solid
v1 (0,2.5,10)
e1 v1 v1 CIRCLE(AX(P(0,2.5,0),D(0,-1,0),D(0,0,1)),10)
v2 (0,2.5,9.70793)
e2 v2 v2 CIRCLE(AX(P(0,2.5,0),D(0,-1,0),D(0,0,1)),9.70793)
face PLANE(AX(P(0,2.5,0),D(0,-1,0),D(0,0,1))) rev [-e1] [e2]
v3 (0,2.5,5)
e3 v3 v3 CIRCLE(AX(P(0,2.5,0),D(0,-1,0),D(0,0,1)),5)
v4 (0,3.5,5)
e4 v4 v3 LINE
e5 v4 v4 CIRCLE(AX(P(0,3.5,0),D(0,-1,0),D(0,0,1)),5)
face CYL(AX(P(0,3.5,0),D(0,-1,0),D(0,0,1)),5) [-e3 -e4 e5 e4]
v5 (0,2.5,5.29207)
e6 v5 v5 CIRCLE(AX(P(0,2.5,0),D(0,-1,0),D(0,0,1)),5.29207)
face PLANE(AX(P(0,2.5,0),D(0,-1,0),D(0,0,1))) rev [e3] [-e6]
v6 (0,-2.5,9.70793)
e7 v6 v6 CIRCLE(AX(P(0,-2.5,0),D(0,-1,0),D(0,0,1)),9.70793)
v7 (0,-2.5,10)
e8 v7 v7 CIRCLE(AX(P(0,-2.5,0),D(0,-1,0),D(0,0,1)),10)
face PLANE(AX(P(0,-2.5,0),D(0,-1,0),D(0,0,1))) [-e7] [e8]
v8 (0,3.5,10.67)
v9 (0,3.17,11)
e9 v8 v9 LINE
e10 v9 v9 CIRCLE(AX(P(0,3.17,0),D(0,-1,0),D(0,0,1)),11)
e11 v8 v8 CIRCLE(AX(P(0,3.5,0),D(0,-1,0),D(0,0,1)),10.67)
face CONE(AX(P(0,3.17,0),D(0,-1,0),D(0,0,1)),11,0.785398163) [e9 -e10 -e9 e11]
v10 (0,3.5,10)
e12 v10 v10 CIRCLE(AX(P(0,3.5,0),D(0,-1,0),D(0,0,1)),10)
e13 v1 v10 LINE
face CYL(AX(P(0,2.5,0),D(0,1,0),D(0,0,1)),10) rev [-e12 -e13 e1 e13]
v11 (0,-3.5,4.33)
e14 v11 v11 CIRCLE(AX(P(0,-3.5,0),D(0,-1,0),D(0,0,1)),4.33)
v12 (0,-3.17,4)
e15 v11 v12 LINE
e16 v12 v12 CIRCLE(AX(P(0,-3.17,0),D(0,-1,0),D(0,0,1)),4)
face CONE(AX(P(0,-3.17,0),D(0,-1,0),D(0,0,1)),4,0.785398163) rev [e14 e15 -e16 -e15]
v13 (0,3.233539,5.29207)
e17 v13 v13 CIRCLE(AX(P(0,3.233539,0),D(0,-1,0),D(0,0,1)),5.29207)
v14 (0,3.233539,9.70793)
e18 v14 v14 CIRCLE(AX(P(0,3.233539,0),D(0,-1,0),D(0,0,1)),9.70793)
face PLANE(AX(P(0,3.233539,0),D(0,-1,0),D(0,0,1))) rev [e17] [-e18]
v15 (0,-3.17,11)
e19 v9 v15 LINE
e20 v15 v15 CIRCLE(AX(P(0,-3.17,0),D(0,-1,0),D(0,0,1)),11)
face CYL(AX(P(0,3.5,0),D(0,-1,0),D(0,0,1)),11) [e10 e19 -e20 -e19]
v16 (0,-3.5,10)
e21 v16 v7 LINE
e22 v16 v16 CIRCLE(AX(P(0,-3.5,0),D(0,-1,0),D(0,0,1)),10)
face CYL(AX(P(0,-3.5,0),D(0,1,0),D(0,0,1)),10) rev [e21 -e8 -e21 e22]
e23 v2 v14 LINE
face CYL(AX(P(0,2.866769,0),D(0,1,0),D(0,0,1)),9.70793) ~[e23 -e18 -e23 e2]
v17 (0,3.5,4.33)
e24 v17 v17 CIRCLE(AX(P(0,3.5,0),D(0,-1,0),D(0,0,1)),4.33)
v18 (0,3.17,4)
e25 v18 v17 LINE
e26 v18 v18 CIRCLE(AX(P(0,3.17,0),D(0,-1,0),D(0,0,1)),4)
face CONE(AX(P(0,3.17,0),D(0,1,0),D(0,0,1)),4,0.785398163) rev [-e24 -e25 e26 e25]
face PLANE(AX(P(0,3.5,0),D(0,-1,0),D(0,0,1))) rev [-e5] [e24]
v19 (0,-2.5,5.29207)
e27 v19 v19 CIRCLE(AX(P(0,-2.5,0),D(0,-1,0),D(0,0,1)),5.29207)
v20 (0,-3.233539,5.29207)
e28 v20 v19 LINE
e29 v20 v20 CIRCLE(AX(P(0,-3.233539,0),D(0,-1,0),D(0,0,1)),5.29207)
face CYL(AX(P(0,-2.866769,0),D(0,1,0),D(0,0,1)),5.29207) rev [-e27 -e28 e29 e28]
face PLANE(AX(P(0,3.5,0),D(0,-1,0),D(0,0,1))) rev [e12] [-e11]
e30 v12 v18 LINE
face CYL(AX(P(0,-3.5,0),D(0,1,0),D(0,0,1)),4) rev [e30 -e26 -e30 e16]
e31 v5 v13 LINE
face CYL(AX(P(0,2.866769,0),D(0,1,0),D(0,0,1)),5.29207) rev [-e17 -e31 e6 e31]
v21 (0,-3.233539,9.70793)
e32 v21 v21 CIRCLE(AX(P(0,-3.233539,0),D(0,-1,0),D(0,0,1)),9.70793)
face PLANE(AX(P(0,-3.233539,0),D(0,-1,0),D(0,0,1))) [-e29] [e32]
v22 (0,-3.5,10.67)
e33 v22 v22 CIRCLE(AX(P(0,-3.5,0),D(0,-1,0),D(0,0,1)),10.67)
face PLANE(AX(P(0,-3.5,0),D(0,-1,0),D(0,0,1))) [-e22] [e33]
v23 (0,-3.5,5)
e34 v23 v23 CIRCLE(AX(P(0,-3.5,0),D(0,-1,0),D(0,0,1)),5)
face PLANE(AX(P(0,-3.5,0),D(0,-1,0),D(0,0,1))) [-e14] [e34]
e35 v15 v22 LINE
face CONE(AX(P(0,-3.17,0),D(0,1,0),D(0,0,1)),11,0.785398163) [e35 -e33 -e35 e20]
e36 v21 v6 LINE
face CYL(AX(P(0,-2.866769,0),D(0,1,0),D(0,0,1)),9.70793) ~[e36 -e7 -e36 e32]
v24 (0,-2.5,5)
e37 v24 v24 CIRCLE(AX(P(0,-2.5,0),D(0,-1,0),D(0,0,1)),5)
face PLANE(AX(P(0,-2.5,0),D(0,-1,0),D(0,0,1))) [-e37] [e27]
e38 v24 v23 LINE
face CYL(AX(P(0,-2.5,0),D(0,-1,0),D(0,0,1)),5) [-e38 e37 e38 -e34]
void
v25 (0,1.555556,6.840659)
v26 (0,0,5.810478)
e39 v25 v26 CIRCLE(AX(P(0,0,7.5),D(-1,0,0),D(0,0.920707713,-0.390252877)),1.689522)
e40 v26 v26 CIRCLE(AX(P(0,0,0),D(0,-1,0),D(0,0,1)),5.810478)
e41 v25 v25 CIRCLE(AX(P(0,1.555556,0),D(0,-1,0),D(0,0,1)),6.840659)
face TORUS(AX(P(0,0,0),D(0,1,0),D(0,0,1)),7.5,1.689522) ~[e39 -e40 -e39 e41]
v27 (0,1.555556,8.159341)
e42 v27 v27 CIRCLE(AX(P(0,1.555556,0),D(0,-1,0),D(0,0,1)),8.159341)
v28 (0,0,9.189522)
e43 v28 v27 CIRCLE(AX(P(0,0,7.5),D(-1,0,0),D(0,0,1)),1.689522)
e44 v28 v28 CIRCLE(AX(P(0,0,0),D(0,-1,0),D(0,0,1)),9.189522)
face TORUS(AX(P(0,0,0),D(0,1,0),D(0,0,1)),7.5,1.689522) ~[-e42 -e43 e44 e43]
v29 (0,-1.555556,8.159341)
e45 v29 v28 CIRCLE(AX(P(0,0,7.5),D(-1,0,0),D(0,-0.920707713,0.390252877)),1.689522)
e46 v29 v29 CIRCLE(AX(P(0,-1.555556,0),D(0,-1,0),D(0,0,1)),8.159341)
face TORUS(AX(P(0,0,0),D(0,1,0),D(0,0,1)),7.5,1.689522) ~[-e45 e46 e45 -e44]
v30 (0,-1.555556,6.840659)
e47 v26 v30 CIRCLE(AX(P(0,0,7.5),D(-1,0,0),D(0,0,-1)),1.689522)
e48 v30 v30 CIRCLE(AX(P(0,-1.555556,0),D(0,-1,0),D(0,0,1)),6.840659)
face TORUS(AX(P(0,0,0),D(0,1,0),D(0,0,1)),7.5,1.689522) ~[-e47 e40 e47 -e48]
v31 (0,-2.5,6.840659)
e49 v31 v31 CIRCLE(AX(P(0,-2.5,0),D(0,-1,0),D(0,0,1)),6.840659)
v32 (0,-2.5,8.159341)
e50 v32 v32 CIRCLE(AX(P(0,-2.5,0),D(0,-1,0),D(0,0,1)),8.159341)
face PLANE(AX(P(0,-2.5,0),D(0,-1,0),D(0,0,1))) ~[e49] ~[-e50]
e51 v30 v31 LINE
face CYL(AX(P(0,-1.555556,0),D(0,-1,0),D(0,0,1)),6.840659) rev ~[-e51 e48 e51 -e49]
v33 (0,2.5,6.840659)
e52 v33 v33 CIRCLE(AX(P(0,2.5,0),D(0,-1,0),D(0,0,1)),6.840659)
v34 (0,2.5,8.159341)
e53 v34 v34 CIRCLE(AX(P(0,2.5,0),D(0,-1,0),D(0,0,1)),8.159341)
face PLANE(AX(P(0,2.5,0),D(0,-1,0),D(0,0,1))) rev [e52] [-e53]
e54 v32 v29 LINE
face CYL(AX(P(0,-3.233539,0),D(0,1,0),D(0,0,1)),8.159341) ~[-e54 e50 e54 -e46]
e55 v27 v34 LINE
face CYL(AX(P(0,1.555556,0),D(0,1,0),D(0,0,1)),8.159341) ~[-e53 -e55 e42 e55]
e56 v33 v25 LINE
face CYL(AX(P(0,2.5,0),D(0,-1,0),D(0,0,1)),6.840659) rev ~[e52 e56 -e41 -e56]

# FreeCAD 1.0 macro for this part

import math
import FreeCAD as App
import Part
import Sketcher

V = App.Vector
Q = App.Units.Quantity


def edges_at(feature, points):
    """Names of the edges that pass closest to the given points."""
    edges = feature.Shape.Edges
    near = lambda p: min(range(len(edges)), key=lambda i: edges[i].distToShape(Part.Vertex(*p))[0])
    return sorted({f"Edge{near(p) + 1}" for p in points})

doc = App.newDocument("Part")
body = doc.addObject("PartDesign::Body", "Body")

# Sketch on YZ plane
sketch1 = doc.addObject("Sketcher::SketchObject", "Sketch")
body.addObject(sketch1)
sketch1.AttachmentSupport = (doc.YZ_Plane, [""])
sketch1.MapMode = "FlatFace"
sketch1.addGeometry(Part.LineSegment(V(3.5, 10, 0), V(3.5, 11, 0)), False)
sketch1.addGeometry(Part.LineSegment(V(3.5, 11, 0), V(-3.5, 11, 0)), False)
sketch1.addGeometry(Part.LineSegment(V(-3.5, 11, 0), V(-3.5, 10, 0)), False)
sketch1.addGeometry(Part.LineSegment(V(-3.5, 10, 0), V(-2.5, 10, 0)), False)
sketch1.addGeometry(Part.LineSegment(V(-2.5, 10, 0), V(-2.5, 9.71, 0)), False)
sketch1.addGeometry(Part.LineSegment(V(-2.5, 9.71, 0), V(-3.23, 9.71, 0)), False)
sketch1.addGeometry(Part.LineSegment(V(-3.23, 9.71, 0), V(-3.23, 5.29, 0)), False)
sketch1.addGeometry(Part.LineSegment(V(-3.23, 5.29, 0), V(-2.5, 5.29, 0)), False)
sketch1.addGeometry(Part.LineSegment(V(-2.5, 5.29, 0), V(-2.5, 5, 0)), False)
sketch1.addGeometry(Part.LineSegment(V(-2.5, 5, 0), V(-3.5, 5, 0)), False)
sketch1.addGeometry(Part.LineSegment(V(-3.5, 5, 0), V(-3.5, 4, 0)), False)
sketch1.addGeometry(Part.LineSegment(V(-3.5, 4, 0), V(3.5, 4, 0)), False)
sketch1.addGeometry(Part.LineSegment(V(3.5, 4, 0), V(3.5, 5, 0)), False)
sketch1.addGeometry(Part.LineSegment(V(3.5, 5, 0), V(2.5, 5, 0)), False)
sketch1.addGeometry(Part.LineSegment(V(2.5, 5, 0), V(2.5, 5.29, 0)), False)
sketch1.addGeometry(Part.LineSegment(V(2.5, 5.29, 0), V(3.23, 5.29, 0)), False)
sketch1.addGeometry(Part.LineSegment(V(3.23, 5.29, 0), V(3.23, 9.71, 0)), False)
sketch1.addGeometry(Part.LineSegment(V(3.23, 9.71, 0), V(2.5, 9.71, 0)), False)
sketch1.addGeometry(Part.LineSegment(V(2.5, 9.71, 0), V(2.5, 10, 0)), False)
sketch1.addGeometry(Part.LineSegment(V(2.5, 10, 0), V(3.5, 10, 0)), False)
sketch1.addGeometry(Part.LineSegment(V(-2.5, 8.16, 0), V(-1.56, 8.16, 0)), False)
sketch1.addGeometry(Part.ArcOfCircle(Part.Circle(V(0, 7.5, 0), V(0, 0, 1), 1.69), math.radians(90), math.radians(157)), False)
sketch1.addGeometry(Part.ArcOfCircle(Part.Circle(V(0, 7.5, 0), V(0, 0, 1), 1.69), math.radians(23), math.radians(90)), False)
sketch1.addGeometry(Part.LineSegment(V(1.56, 8.16, 0), V(2.5, 8.16, 0)), False)
sketch1.addGeometry(Part.LineSegment(V(2.5, 8.16, 0), V(2.5, 6.84, 0)), False)
sketch1.addGeometry(Part.LineSegment(V(2.5, 6.84, 0), V(1.56, 6.84, 0)), False)
sketch1.addGeometry(Part.ArcOfCircle(Part.Circle(V(0, 7.5, 0), V(0, 0, 1), 1.69), math.radians(-90), math.radians(-23)), False)
sketch1.addGeometry(Part.ArcOfCircle(Part.Circle(V(0, 7.5, 0), V(0, 0, 1), 1.69), math.radians(-157), math.radians(-90)), False)
sketch1.addGeometry(Part.LineSegment(V(-1.56, 6.84, 0), V(-2.5, 6.84, 0)), False)
sketch1.addGeometry(Part.LineSegment(V(-2.5, 6.84, 0), V(-2.5, 8.16, 0)), False)
sketch1.addConstraint(Sketcher.Constraint("Coincident", 0, 2, 1, 1))
sketch1.addConstraint(Sketcher.Constraint("Coincident", 1, 2, 2, 1))
sketch1.addConstraint(Sketcher.Constraint("Coincident", 2, 2, 3, 1))
sketch1.addConstraint(Sketcher.Constraint("Coincident", 3, 2, 4, 1))
sketch1.addConstraint(Sketcher.Constraint("Coincident", 4, 2, 5, 1))
sketch1.addConstraint(Sketcher.Constraint("Coincident", 5, 2, 6, 1))
sketch1.addConstraint(Sketcher.Constraint("Coincident", 6, 2, 7, 1))
sketch1.addConstraint(Sketcher.Constraint("Coincident", 7, 2, 8, 1))
sketch1.addConstraint(Sketcher.Constraint("Coincident", 8, 2, 9, 1))
sketch1.addConstraint(Sketcher.Constraint("Coincident", 9, 2, 10, 1))
sketch1.addConstraint(Sketcher.Constraint("Coincident", 10, 2, 11, 1))
sketch1.addConstraint(Sketcher.Constraint("Coincident", 11, 2, 12, 1))
sketch1.addConstraint(Sketcher.Constraint("Coincident", 12, 2, 13, 1))
sketch1.addConstraint(Sketcher.Constraint("Coincident", 13, 2, 14, 1))
sketch1.addConstraint(Sketcher.Constraint("Coincident", 14, 2, 15, 1))
sketch1.addConstraint(Sketcher.Constraint("Coincident", 15, 2, 16, 1))
sketch1.addConstraint(Sketcher.Constraint("Coincident", 16, 2, 17, 1))
sketch1.addConstraint(Sketcher.Constraint("Coincident", 17, 2, 18, 1))
sketch1.addConstraint(Sketcher.Constraint("Coincident", 18, 2, 19, 1))
sketch1.addConstraint(Sketcher.Constraint("Coincident", 19, 2, 0, 1))
sketch1.addConstraint(Sketcher.Constraint("Coincident", 20, 2, 21, 2))
sketch1.addConstraint(Sketcher.Constraint("Tangent", 21, 1, 22, 2))
sketch1.addConstraint(Sketcher.Constraint("Coincident", 22, 1, 23, 1))
sketch1.addConstraint(Sketcher.Constraint("Coincident", 23, 2, 24, 1))
sketch1.addConstraint(Sketcher.Constraint("Coincident", 24, 2, 25, 1))
sketch1.addConstraint(Sketcher.Constraint("Coincident", 25, 2, 26, 2))
sketch1.addConstraint(Sketcher.Constraint("Tangent", 26, 1, 27, 2))
sketch1.addConstraint(Sketcher.Constraint("Coincident", 27, 1, 28, 1))
sketch1.addConstraint(Sketcher.Constraint("Coincident", 28, 2, 29, 1))
sketch1.addConstraint(Sketcher.Constraint("Coincident", 29, 2, 20, 1))
sketch1.addConstraint(Sketcher.Constraint("Vertical", 0))
sketch1.addConstraint(Sketcher.Constraint("Horizontal", 1))
sketch1.addConstraint(Sketcher.Constraint("Vertical", 2))
sketch1.addConstraint(Sketcher.Constraint("Horizontal", 3))
sketch1.addConstraint(Sketcher.Constraint("Vertical", 4))
sketch1.addConstraint(Sketcher.Constraint("Horizontal", 5))
sketch1.addConstraint(Sketcher.Constraint("Vertical", 6))
sketch1.addConstraint(Sketcher.Constraint("Horizontal", 7))
sketch1.addConstraint(Sketcher.Constraint("Vertical", 8))
sketch1.addConstraint(Sketcher.Constraint("Horizontal", 9))
sketch1.addConstraint(Sketcher.Constraint("Vertical", 10))
sketch1.addConstraint(Sketcher.Constraint("Horizontal", 11))
sketch1.addConstraint(Sketcher.Constraint("Vertical", 12))
sketch1.addConstraint(Sketcher.Constraint("Horizontal", 13))
sketch1.addConstraint(Sketcher.Constraint("Vertical", 14))
sketch1.addConstraint(Sketcher.Constraint("Horizontal", 15))
sketch1.addConstraint(Sketcher.Constraint("Vertical", 16))
sketch1.addConstraint(Sketcher.Constraint("Horizontal", 17))
sketch1.addConstraint(Sketcher.Constraint("Vertical", 18))
sketch1.addConstraint(Sketcher.Constraint("Horizontal", 19))
sketch1.addConstraint(Sketcher.Constraint("Horizontal", 20))
sketch1.addConstraint(Sketcher.Constraint("Horizontal", 23))
sketch1.addConstraint(Sketcher.Constraint("Vertical", 24))
sketch1.addConstraint(Sketcher.Constraint("Horizontal", 25))
sketch1.addConstraint(Sketcher.Constraint("Horizontal", 28))
sketch1.addConstraint(Sketcher.Constraint("Vertical", 29))
sketch1.addConstraint(Sketcher.Constraint("Coincident", 26, 3, 21, 3))
sketch1.addConstraint(Sketcher.Constraint("Equal", 21, 22))
sketch1.addConstraint(Sketcher.Constraint("Equal", 22, 26))
sketch1.addConstraint(Sketcher.Constraint("Equal", 26, 27))
sketch1.addConstraint(Sketcher.Constraint("Symmetric", 9, 2, 12, 2, -2))
sketch1.addConstraint(Sketcher.Constraint("Symmetric", 7, 2, 14, 2, -2))
sketch1.addConstraint(Sketcher.Constraint("Symmetric", 5, 2, 16, 2, -2))
sketch1.addConstraint(Sketcher.Constraint("Symmetric", 3, 2, 18, 2, -2))
sketch1.addConstraint(Sketcher.Constraint("Symmetric", 20, 2, 22, 1, -2))
sketch1.addConstraint(Sketcher.Constraint("Symmetric", 24, 2, 28, 2, -2))
sketch1.addConstraint(Sketcher.Constraint("PointOnObject", 21, 1, -2))
sketch1.addConstraint(Sketcher.Constraint("PointOnObject", 26, 1, -2))
sketch1.addConstraint(Sketcher.Constraint("Vertical", 4, 2, 7, 2))
sketch1.addConstraint(Sketcher.Constraint("Vertical", 2, 2, 9, 2))
sketch1.addConstraint(Sketcher.Constraint("Vertical", 0, 2, 11, 2))
sketch1.addConstraint(Sketcher.Constraint("Vertical", 18, 2, 23, 2))
sketch1.addConstraint(Sketcher.Constraint("Vertical", 22, 1, 25, 2))
sketch1.addConstraint(Sketcher.Constraint("Equal", 19, 0))
sketch1.addConstraint(Sketcher.Constraint("Equal", 4, 8))
sketch1.addConstraint(Sketcher.Constraint("Equal", 2, 10))
sketch1.addConstraint(Sketcher.Constraint("DistanceX", 1, 2, 1, 1, Q("7 mm")))
sketch1.addConstraint(Sketcher.Constraint("DistanceX", 3, 1, 3, 2, Q("1 mm")))
sketch1.addConstraint(Sketcher.Constraint("DistanceY", -1, 1, 0, 2, Q("11 mm")))
sketch1.addConstraint(Sketcher.Constraint("DistanceY", -1, 1, 8, 2, Q("5 mm")))
sketch1.addConstraint(Sketcher.Constraint("DistanceY", -1, 1, 21, 3, Q("7.5 mm")))
sketch1.addConstraint(Sketcher.Constraint("Radius", 21, Q("1.689522 mm")))
sketch1.addConstraint(Sketcher.Constraint("DistanceX", 5, 2, 5, 1, Q("0.733539 mm")))
sketch1.addConstraint(Sketcher.Constraint("DistanceY", 4, 2, 4, 1, Q("0.29207 mm")))
sketch1.addConstraint(Sketcher.Constraint("DistanceY", 24, 2, 24, 1, Q("1.318681 mm")))
revolution = doc.addObject("PartDesign::Revolution", "Revolution")
body.addObject(revolution)
revolution.Profile = sketch1
revolution.ReferenceAxis = (sketch1, ["H_Axis"])
revolution.Angle = 360
doc.recompute()

chamfer = doc.addObject("PartDesign::Chamfer", "Chamfer")
body.addObject(chamfer)
chamfer.Base = (revolution, edges_at(revolution, [
    (0, -3.5, -4),
    (0, 3.5, -4),
    (0, 0, 4),
    (0, 3.5, -11),
    (0, -3.5, -11),
    (0, 0, 11),
]))
chamfer.Size = 0.33

doc.recompute()
